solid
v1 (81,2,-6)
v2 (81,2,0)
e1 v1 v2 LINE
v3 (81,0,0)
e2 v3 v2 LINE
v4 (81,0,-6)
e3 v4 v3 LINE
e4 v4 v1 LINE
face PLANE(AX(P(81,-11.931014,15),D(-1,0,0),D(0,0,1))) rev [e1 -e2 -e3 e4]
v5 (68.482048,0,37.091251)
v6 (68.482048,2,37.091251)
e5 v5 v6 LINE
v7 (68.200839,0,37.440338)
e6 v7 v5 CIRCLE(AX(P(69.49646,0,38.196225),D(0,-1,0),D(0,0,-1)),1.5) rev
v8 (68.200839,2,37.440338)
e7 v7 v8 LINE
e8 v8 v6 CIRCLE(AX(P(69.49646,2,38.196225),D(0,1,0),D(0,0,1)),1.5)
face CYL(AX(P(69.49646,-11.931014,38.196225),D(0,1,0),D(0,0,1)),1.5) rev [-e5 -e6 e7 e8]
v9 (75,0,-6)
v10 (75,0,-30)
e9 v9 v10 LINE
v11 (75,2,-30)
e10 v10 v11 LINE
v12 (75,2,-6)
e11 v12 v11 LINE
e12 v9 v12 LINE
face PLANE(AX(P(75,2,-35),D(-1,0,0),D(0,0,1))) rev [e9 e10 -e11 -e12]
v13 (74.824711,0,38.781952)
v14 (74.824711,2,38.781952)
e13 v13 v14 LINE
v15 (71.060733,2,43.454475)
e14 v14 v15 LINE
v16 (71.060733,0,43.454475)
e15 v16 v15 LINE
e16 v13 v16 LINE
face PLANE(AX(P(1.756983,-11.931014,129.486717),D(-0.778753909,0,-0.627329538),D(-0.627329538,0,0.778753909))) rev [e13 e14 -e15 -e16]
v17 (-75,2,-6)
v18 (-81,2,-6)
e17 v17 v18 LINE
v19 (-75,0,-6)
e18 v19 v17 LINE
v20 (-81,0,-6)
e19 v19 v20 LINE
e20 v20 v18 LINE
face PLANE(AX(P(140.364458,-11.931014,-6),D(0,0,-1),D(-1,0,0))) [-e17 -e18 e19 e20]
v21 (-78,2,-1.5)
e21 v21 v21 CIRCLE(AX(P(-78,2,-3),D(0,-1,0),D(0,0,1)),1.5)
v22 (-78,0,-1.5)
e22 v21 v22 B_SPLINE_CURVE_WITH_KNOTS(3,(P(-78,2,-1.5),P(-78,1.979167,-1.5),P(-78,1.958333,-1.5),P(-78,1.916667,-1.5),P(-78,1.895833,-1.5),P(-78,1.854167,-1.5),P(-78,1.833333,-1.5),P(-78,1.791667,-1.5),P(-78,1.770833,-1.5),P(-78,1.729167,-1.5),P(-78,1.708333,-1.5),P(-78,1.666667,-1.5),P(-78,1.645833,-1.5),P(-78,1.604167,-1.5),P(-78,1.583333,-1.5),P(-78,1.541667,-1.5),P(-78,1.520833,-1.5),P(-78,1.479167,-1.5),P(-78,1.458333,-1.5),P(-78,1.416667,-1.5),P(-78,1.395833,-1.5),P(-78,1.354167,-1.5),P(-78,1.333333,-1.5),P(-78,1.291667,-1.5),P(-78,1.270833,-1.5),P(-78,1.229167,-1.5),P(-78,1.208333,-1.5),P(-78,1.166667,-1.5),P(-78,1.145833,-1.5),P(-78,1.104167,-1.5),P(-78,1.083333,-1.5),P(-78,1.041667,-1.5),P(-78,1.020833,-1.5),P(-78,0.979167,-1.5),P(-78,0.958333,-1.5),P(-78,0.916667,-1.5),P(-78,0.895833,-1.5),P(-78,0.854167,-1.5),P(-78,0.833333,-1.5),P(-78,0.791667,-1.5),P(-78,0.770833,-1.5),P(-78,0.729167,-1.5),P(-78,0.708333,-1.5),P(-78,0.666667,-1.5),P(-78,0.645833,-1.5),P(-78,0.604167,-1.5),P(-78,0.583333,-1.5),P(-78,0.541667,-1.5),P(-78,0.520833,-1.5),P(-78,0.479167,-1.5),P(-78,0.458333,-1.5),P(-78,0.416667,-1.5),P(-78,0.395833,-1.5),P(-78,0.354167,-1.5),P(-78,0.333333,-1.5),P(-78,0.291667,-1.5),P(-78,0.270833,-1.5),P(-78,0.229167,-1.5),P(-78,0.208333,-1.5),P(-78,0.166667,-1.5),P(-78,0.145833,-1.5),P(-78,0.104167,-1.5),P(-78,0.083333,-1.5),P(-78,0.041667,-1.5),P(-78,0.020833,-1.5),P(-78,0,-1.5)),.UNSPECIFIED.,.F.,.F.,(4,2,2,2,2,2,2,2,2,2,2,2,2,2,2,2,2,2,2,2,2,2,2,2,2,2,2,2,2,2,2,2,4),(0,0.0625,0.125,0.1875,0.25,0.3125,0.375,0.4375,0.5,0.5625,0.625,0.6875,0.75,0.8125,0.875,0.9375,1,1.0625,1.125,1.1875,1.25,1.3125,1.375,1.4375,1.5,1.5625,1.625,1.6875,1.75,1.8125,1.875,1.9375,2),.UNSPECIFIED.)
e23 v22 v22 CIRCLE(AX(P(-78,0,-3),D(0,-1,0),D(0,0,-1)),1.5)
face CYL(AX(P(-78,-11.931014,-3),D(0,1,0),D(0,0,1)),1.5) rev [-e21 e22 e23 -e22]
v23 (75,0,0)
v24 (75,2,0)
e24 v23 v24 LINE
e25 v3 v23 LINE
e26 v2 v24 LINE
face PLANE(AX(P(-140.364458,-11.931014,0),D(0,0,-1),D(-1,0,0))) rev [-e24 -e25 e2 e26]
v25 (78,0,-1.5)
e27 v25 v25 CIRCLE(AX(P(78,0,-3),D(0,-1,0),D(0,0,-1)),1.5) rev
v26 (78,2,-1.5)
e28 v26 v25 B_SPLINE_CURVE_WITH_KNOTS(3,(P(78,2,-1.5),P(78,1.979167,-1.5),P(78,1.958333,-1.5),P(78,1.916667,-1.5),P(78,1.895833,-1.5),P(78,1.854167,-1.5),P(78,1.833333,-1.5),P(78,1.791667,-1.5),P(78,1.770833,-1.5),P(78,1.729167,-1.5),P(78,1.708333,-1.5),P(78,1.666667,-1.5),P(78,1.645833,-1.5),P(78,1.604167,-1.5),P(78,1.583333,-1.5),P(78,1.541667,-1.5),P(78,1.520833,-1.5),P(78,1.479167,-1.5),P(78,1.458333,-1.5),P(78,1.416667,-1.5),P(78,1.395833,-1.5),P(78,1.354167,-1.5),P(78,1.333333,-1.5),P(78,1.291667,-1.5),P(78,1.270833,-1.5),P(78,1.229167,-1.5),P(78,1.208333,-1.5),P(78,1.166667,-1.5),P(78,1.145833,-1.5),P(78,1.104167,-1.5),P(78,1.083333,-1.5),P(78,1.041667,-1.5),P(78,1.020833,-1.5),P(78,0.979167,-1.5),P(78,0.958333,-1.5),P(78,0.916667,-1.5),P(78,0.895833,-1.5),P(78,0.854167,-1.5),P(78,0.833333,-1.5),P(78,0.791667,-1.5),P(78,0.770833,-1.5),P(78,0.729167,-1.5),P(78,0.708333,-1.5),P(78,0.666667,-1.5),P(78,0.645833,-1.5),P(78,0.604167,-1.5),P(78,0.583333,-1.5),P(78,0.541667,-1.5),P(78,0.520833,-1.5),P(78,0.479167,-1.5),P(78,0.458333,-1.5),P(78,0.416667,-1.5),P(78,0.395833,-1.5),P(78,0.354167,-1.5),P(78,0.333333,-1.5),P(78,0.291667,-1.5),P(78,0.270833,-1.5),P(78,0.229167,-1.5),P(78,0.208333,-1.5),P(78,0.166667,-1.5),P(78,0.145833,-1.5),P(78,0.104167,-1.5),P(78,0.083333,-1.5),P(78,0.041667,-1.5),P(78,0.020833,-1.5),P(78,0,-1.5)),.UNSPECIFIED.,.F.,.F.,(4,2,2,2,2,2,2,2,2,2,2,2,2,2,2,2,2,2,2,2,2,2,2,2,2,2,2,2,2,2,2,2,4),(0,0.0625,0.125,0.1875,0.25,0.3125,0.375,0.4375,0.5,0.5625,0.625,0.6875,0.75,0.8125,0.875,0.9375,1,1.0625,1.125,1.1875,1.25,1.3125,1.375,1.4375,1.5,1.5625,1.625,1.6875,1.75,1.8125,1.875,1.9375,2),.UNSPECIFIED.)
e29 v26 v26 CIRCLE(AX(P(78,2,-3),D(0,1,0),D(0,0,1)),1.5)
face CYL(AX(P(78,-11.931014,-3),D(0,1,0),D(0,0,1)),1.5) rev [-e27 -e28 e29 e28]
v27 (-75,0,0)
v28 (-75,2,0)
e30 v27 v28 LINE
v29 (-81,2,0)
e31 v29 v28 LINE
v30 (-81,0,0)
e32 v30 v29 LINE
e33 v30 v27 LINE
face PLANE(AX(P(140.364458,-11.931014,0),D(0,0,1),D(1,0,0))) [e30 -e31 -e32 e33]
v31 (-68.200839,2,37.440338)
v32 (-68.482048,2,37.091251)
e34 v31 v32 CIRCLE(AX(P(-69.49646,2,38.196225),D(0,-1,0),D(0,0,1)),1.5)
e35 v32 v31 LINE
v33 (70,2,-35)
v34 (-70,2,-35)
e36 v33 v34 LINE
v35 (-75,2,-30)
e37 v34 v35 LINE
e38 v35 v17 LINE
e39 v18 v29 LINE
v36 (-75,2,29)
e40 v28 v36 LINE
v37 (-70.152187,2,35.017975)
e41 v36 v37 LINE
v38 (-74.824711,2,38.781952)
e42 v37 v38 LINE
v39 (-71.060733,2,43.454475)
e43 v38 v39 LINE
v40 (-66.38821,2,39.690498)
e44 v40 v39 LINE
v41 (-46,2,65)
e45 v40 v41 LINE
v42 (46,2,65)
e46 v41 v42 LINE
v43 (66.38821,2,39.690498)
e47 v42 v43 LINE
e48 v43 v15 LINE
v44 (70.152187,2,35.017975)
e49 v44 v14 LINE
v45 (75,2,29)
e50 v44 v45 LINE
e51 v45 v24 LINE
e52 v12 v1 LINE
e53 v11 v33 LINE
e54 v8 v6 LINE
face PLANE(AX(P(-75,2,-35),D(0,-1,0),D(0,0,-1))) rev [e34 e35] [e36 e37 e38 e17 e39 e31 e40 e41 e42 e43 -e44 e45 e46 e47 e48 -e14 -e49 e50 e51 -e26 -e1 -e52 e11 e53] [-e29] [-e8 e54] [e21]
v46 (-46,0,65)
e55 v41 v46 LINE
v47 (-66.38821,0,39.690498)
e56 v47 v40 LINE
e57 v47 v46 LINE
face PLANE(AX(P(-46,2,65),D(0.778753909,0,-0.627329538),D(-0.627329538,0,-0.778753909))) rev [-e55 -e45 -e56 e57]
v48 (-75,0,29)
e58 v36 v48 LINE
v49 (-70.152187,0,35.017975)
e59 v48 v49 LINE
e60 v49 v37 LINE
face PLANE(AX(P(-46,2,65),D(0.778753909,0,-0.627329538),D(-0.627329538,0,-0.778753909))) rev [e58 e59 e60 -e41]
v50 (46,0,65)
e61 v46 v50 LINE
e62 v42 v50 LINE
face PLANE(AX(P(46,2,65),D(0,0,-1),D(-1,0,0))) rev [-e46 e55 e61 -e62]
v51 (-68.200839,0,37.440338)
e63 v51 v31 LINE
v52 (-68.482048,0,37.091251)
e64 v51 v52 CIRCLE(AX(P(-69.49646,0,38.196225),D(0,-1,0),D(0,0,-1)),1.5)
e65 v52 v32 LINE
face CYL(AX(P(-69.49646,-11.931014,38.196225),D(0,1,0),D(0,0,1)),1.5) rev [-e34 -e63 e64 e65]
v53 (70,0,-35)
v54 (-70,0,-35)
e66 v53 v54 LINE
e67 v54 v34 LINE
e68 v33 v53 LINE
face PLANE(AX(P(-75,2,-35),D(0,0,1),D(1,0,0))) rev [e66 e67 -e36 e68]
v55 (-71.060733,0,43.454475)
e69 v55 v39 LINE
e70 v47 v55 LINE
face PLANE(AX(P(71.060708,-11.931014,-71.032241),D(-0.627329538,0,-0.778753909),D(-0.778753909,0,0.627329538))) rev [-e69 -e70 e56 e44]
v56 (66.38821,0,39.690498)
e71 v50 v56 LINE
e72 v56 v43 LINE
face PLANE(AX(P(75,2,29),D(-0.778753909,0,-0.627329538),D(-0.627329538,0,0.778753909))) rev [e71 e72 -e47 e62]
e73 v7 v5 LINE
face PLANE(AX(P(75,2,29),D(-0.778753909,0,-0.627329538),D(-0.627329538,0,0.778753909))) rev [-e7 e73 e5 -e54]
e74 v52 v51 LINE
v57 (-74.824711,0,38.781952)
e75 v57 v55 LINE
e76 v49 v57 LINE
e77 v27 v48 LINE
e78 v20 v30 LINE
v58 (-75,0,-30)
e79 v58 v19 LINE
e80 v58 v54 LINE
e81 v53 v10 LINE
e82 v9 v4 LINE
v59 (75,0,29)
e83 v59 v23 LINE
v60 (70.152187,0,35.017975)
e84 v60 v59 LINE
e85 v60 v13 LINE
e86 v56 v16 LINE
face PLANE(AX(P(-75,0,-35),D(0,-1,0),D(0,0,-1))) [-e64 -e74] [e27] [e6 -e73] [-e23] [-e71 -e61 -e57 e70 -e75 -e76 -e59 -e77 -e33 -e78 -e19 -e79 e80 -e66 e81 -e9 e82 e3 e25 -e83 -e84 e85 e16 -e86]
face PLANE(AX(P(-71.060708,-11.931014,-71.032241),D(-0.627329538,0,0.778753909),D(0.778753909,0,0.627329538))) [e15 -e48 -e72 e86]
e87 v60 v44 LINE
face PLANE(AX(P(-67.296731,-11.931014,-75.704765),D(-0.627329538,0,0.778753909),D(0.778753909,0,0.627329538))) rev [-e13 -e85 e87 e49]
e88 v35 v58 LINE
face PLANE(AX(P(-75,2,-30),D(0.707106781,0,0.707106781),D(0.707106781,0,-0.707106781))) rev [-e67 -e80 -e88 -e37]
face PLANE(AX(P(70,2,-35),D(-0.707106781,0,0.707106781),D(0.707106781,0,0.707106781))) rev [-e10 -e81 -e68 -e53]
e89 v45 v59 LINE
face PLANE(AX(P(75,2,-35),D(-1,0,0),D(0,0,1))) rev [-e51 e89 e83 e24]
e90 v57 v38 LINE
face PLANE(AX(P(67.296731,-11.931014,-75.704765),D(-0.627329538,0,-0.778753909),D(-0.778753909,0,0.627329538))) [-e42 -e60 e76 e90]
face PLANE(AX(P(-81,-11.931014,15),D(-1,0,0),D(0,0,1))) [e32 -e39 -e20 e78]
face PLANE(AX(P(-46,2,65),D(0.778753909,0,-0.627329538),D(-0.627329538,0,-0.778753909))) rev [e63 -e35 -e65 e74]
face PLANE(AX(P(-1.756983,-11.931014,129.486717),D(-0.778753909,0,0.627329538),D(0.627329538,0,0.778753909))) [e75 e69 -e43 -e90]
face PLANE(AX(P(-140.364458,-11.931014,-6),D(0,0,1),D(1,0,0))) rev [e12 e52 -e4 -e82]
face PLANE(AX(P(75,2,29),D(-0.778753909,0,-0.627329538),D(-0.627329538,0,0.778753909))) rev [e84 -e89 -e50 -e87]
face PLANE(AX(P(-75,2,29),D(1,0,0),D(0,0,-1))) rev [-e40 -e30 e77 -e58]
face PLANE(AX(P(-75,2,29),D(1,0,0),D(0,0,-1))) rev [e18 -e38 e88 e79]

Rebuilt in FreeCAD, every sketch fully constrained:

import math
import FreeCAD as App
import Part
import Sketcher


def edges_at(feature, points):
    """Names of the edges that pass closest to the given points."""
    edges = feature.Shape.Edges
    near = lambda p: min(range(len(edges)), key=lambda i: edges[i].distToShape(Part.Vertex(*p))[0])
    return sorted({f"Edge{near(p) + 1}" for p in points})


def add_polygon(sketch, points):
    """Adds a closed chain of lines whose ends are joined by coincident constraints."""
    first, n = sketch.GeometryCount, len(points)
    for a, b in zip(points, points[1:] + points[:1]):
        sketch.addGeometry(Part.LineSegment(App.Vector(*a, 0), App.Vector(*b, 0)), False)
    for i in range(n):
        sketch.addConstraint(Sketcher.Constraint("Coincident", first + i, 2, first + (i + 1) % n, 1))

doc = App.newDocument("Part")
params = doc.addObject("Spreadsheet::Sheet", "Params")
for row, (alias, value) in enumerate([
    ("sketch1_width", "150 mm"),
    ("sketch1_width2", "92 mm"),
    ("sketch1_height", "64 mm"),
    ("pad1_length", "2 mm"),
    ("sketch2_diameter", "3 mm"),
    ("sketch2_width", "6 mm"),
    ("sketch2_length", "6 mm"),
    ("pad2_length", "2 mm"),
    ("chamfer_size", "5 mm"),
], start=1):
    params.set(f"A{row}", alias)
    params.set(f"B{row}", "=" + value)
    params.setAlias(f"B{row}", alias)

body = doc.addObject("PartDesign::Body", "Body")

sketch1 = body.newObject("Sketcher::SketchObject", "Sketch")
sketch1.AttachmentSupport = (doc.getObject("XZ_Plane"), [""])
sketch1.MapMode = "FlatFace"
add_polygon(sketch1, [(75, -35), (-75, -35), (-75, 29), (-46, 65), (46, 65), (75, 29)])
sketch1.addConstraint(Sketcher.Constraint("Horizontal", 0))
sketch1.addConstraint(Sketcher.Constraint("Vertical", 1))
sketch1.addConstraint(Sketcher.Constraint("Horizontal", 3))
sketch1.addConstraint(Sketcher.Constraint("Vertical", 5))
sketch1.addConstraint(Sketcher.Constraint("Symmetric", 1, 2, 4, 2, -2))
sketch1.addConstraint(Sketcher.Constraint("Equal", 2, 4))
sketch1.addConstraint(Sketcher.Constraint("DistanceX", 0, 2, 0, 1, 150.0))
sketch1.addConstraint(Sketcher.Constraint("DistanceX", 3, 1, 3, 2, 92.0))
sketch1.addConstraint(Sketcher.Constraint("DistanceY", 1, 1, 1, 2, 64.0))
sketch1.addConstraint(Sketcher.Constraint("DistanceY", 0, 2, -1, 1, 35.0))
sketch1.addConstraint(Sketcher.Constraint("DistanceY", -1, 1, 2, 2, 65.0))
sketch1.setExpression("Constraints[12]", "Params.sketch1_width")
sketch1.setExpression("Constraints[13]", "Params.sketch1_width2")
sketch1.setExpression("Constraints[14]", "Params.sketch1_height")
pad1 = body.newObject("PartDesign::Pad", "Pad")
pad1.Profile = sketch1
pad1.setExpression("Length", "Params.pad1_length")
pad1.Reversed = True

sketch2 = body.newObject("Sketcher::SketchObject", "Sketch001")
sketch2.AttachmentSupport = (doc.getObject("XZ_Plane"), [""])
sketch2.MapMode = "FlatFace"
sketch2.AttachmentOffset = App.Placement(App.Vector(0, 0, -2), App.Rotation())
add_polygon(sketch2, [(75, -6), (75, 0), (81, 0), (81, -6)])
sketch2.addGeometry(Part.Circle(App.Vector(78, -3, 0), App.Vector(0, 0, 1), 1.5), False)
sketch2.addGeometry(Part.LineSegment(App.Vector(74.8, 38.8, 0), App.Vector(70.2, 35, 0)), False)
sketch2.addGeometry(Part.LineSegment(App.Vector(70.2, 35, 0), App.Vector(68.5, 37.1, 0)), False)
sketch2.addGeometry(Part.ArcOfCircle(Part.Circle(App.Vector(69.5, 38.2, 0), App.Vector(0, 0, 1), 1.5), math.radians(-133), math.radians(0)), False)
sketch2.addGeometry(Part.ArcOfCircle(Part.Circle(App.Vector(69.5, 38.2, 0), App.Vector(0, 0, 1), 1.5), math.radians(0), math.radians(210)), False)
sketch2.addGeometry(Part.LineSegment(App.Vector(68.2, 37.4, 0), App.Vector(66.4, 39.7, 0)), False)
sketch2.addGeometry(Part.LineSegment(App.Vector(66.4, 39.7, 0), App.Vector(71.1, 43.5, 0)), False)
sketch2.addGeometry(Part.LineSegment(App.Vector(71.1, 43.5, 0), App.Vector(74.8, 38.8, 0)), False)
sketch2.addConstraint(Sketcher.Constraint("Coincident", 5, 2, 6, 1))
sketch2.addConstraint(Sketcher.Constraint("Coincident", 6, 2, 7, 1))
sketch2.addConstraint(Sketcher.Constraint("Tangent", 7, 2, 8, 1))
sketch2.addConstraint(Sketcher.Constraint("Coincident", 8, 2, 9, 1))
sketch2.addConstraint(Sketcher.Constraint("Coincident", 9, 2, 10, 1))
sketch2.addConstraint(Sketcher.Constraint("Coincident", 10, 2, 11, 1))
sketch2.addConstraint(Sketcher.Constraint("Coincident", 11, 2, 5, 1))
sketch2.addConstraint(Sketcher.Constraint("Vertical", 0))
sketch2.addConstraint(Sketcher.Constraint("Horizontal", 1))
sketch2.addConstraint(Sketcher.Constraint("Vertical", 2))
sketch2.addConstraint(Sketcher.Constraint("Horizontal", 3))
sketch2.addConstraint(Sketcher.Constraint("Equal", 4, 7))
sketch2.addConstraint(Sketcher.Constraint("Equal", 7, 8))
sketch2.addConstraint(Sketcher.Constraint("PointOnObject", 0, 2, -1))
sketch2.addConstraint(Sketcher.Constraint("Perpendicular", 5, 6))
sketch2.addConstraint(Sketcher.Constraint("Parallel", 6, 9))
sketch2.addConstraint(Sketcher.Constraint("Perpendicular", 9, 10))
sketch2.addConstraint(Sketcher.Constraint("Perpendicular", 10, 11))
sketch2.addConstraint(Sketcher.Constraint("Horizontal", 8, 3, 7, 2))
sketch2.addConstraint(Sketcher.Constraint("Equal", 3, 0))
sketch2.addConstraint(Sketcher.Constraint("Equal", 5, 10))
sketch2.addConstraint(Sketcher.Constraint("Equal", 10, 11))
sketch2.addConstraint(Sketcher.Constraint("Diameter", 4, 3.0))
sketch2.addConstraint(Sketcher.Constraint("DistanceX", 1, 1, 1, 2, 6.0))
sketch2.addConstraint(Sketcher.Constraint("Distance", 5, 6.0))
sketch2.addConstraint(Sketcher.Constraint("DistanceX", -1, 1, 4, 3, 78.0))
sketch2.addConstraint(Sketcher.Constraint("DistanceY", 4, 3, -1, 1, 3.0))
sketch2.addConstraint(Sketcher.Constraint("DistanceX", -1, 1, 0, 2, 75.0))
sketch2.addConstraint(Sketcher.Constraint("Distance", 6, 2.6623))
sketch2.addConstraint(Sketcher.Constraint("DistanceX", -1, 1, 7, 3, 69.49646))
sketch2.addConstraint(Sketcher.Constraint("DistanceY", -1, 1, 6, 2, 37.091251))
sketch2.addConstraint(Sketcher.Constraint("DistanceX", -1, 1, 8, 2, 68.200839))
sketch2.addConstraint(Sketcher.Constraint("DistanceY", -1, 1, 8, 2, 37.440338))
sketch2.setExpression("Constraints[26]", "Params.sketch2_diameter")
sketch2.setExpression("Constraints[27]", "Params.sketch2_width")
sketch2.setExpression("Constraints[28]", "Params.sketch2_length")
pad2 = body.newObject("PartDesign::Pad", "Pad001")
pad2.Profile = sketch2
pad2.setExpression("Length", "Params.pad2_length")
doc.recompute()

chamfer = body.newObject("PartDesign::Chamfer", "Chamfer")
chamfer.Base = (pad2, edges_at(pad2, [(-75, 1, -35), (75, 1, -35)]))
chamfer.setExpression("Size", "Params.chamfer_size")
doc.recompute()

mirrored = body.newObject("PartDesign::Mirrored", "Mirrored")
mirrored.Originals = [pad2]
mirrored.MirrorPlane = (doc.getObject("YZ_Plane"), [""])
body.Tip = mirrored

doc.recompute()
